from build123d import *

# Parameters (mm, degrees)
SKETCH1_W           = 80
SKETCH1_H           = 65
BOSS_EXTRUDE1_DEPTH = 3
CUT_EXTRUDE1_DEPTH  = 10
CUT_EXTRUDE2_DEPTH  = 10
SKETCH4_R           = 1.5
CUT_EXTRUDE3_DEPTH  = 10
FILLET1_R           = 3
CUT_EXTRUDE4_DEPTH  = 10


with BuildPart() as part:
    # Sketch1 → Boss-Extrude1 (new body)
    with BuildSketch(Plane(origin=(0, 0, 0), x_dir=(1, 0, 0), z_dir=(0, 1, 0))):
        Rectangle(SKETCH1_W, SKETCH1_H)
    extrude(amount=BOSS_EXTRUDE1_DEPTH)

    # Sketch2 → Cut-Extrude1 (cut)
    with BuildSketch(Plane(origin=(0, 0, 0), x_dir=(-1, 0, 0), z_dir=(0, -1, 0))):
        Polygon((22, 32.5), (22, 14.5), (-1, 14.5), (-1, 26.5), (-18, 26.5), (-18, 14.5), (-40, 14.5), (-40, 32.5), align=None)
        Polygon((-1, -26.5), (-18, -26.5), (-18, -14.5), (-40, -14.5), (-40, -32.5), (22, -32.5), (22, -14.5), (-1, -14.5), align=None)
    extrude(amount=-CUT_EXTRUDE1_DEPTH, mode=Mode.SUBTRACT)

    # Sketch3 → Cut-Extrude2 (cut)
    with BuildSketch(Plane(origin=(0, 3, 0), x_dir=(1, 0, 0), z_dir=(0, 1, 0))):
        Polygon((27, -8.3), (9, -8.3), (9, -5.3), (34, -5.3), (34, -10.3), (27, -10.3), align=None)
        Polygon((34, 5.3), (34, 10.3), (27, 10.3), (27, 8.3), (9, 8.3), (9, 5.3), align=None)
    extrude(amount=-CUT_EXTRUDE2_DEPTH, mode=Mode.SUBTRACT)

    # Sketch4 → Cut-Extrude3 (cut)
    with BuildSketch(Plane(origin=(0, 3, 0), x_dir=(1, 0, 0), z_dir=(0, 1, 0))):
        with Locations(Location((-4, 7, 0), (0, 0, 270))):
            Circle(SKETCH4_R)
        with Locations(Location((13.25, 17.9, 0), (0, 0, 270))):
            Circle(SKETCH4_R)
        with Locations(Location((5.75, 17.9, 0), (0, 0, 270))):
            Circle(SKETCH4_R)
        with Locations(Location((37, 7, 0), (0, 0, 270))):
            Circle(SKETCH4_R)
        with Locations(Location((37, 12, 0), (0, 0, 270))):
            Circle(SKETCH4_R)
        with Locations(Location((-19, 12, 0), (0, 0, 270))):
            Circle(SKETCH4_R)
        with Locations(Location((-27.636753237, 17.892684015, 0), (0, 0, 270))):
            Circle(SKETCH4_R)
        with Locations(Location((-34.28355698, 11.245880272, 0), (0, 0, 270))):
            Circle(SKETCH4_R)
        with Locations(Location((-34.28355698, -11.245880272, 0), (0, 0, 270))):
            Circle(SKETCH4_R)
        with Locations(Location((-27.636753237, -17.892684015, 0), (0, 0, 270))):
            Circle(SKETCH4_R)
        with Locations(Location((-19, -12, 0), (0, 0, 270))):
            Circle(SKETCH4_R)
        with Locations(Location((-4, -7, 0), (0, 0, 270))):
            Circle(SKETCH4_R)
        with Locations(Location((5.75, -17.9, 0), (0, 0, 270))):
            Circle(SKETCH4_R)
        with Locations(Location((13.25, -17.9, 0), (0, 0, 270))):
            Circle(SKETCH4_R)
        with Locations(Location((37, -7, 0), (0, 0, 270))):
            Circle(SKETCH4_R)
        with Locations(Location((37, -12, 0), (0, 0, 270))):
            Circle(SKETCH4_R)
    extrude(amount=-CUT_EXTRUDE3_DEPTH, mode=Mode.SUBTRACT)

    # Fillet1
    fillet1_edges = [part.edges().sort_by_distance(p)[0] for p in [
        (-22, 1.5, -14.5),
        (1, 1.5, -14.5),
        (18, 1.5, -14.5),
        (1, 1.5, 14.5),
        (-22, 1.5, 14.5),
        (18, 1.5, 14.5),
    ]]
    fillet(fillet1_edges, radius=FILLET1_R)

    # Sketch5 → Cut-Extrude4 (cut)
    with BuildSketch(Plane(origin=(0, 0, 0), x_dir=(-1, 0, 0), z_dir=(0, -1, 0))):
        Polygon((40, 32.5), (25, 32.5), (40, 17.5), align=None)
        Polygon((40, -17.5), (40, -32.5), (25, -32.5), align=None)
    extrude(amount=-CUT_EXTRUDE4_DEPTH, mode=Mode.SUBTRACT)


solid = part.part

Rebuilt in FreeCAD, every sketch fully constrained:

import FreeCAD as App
import Part
import Sketcher
from FreeCAD import Vector


def edges_at(feature, points):
    """Names of the edges that pass closest to the given points."""
    edges = feature.Shape.Edges
    near = lambda p: min(range(len(edges)), key=lambda i: edges[i].distToShape(Part.Vertex(*p))[0])
    return sorted({f"Edge{near(p) + 1}" for p in points})


def add_polygon(sketch, points):
    """Adds a closed chain of lines whose ends are joined by coincident constraints."""
    first, n = sketch.GeometryCount, len(points)
    for a, b in zip(points, points[1:] + points[:1]):
        sketch.addGeometry(Part.LineSegment(App.Vector(*a, 0), App.Vector(*b, 0)), False)
    for i in range(n):
        sketch.addConstraint(Sketcher.Constraint("Coincident", first + i, 2, first + (i + 1) % n, 1))

doc = App.newDocument("Part")
params = doc.addObject("Spreadsheet::Sheet", "Params")
for row, (alias, value) in enumerate([
    ("sketch1_width", "80 mm"),
    ("sketch1_height", "65 mm"),
    ("pad1_length", "3 mm"),
    ("sketch2_width", "62 mm"),
    ("sketch2_width2", "22 mm"),
    ("sketch2_width3", "17 mm"),
    ("sketch2_height", "18 mm"),
    ("sketch2_height2", "12 mm"),
    ("pocket1_length", "10 mm"),
    ("sketch3_width", "18 mm"),
    ("sketch3_width2", "7 mm"),
    ("sketch3_height", "2 mm"),
    ("sketch3_height2", "5 mm"),
    ("pocket2_length", "10 mm"),
    ("sketch4_diameter", "3 mm"),
    ("pocket3_length", "10 mm"),
    ("fillet_radius", "3 mm"),
    ("sketch5_width", "15 mm"),
    ("pocket4_length", "10 mm"),
], start=1):
    params.set(f"A{row}", alias)
    params.set(f"B{row}", "=" + value)
    params.setAlias(f"B{row}", alias)

body = doc.addObject("PartDesign::Body", "Body")

# Sketch on XZ plane
sketch1 = doc.addObject("Sketcher::SketchObject", "Sketch")
body.addObject(sketch1)
sketch1.AttachmentSupport = (doc.XZ_Plane, [""])
sketch1.MapMode = "FlatFace"
add_polygon(sketch1, [(-40, -32), (-40, 32), (40, 32), (40, -32)])  # lines 0-3
sketch1.addConstraint([
    Sketcher.Constraint("Vertical", 0),
    Sketcher.Constraint("Horizontal", 1),
    Sketcher.Constraint("Vertical", 2),
    Sketcher.Constraint("Horizontal", 3),
    Sketcher.Constraint("Symmetric", 0, 2, 2, 2, -1, 1),
    Sketcher.Constraint("DistanceX", 1, 1, 1, 2, 80.0),
    Sketcher.Constraint("DistanceY", 0, 1, 0, 2, 65.0),
])
sketch1.setExpression("Constraints[9]", "Params.sketch1_width")
sketch1.setExpression("Constraints[10]", "Params.sketch1_height")
pad1 = doc.addObject("PartDesign::Pad", "Pad")
body.addObject(pad1)
pad1.Profile = sketch1
pad1.setExpression("Length", "Params.pad1_length")
pad1.Reversed = True

# Sketch on XZ plane
sketch2 = doc.addObject("Sketcher::SketchObject", "Sketch001")
body.addObject(sketch2)
sketch2.AttachmentSupport = (doc.XZ_Plane, [""])
sketch2.MapMode = "FlatFace"
add_polygon(sketch2, [(-22, -14), (-22, -32), (40, -32), (40, -14), (18, -14), (18, -26), (1, -26), (1, -14)])  # lines 0-7
add_polygon(sketch2, [(1, 26), (18, 26), (18, 14), (40, 14), (40, 32), (-22, 32), (-22, 14), (1, 14)])  # lines 8-15
sketch2.addConstraint([
    Sketcher.Constraint("Vertical", 0),
    Sketcher.Constraint("Horizontal", 1),
    Sketcher.Constraint("Vertical", 2),
    Sketcher.Constraint("Horizontal", 3),
    Sketcher.Constraint("Vertical", 4),
    Sketcher.Constraint("Horizontal", 5),
    Sketcher.Constraint("Vertical", 6),
    Sketcher.Constraint("Horizontal", 7),
    Sketcher.Constraint("Horizontal", 8),
    Sketcher.Constraint("Vertical", 9),
    Sketcher.Constraint("Horizontal", 10),
    Sketcher.Constraint("Vertical", 11),
    Sketcher.Constraint("Horizontal", 12),
    Sketcher.Constraint("Vertical", 13),
    Sketcher.Constraint("Horizontal", 14),
    Sketcher.Constraint("Vertical", 15),
    Sketcher.Constraint("Symmetric", 4, 2, 8, 2, -1),
    Sketcher.Constraint("Symmetric", 2, 2, 10, 2, -1),
    Sketcher.Constraint("Symmetric", 0, 2, 12, 2, -1),
    Sketcher.Constraint("Symmetric", 6, 2, 14, 2, -1),
    Sketcher.Constraint("Horizontal", 3, 2, 6, 2),
    Sketcher.Constraint("DistanceX", 1, 1, 1, 2, 62.0),
    Sketcher.Constraint("DistanceX", 3, 2, 3, 1, 22.0),
    Sketcher.Constraint("DistanceX", 5, 2, 5, 1, 17.0),
    Sketcher.Constraint("DistanceY", 0, 2, 0, 1, 18.0),
    Sketcher.Constraint("DistanceY", 4, 2, 4, 1, 12.0),
    Sketcher.Constraint("DistanceX", 0, 2, -1, 1, 22.0),
    Sketcher.Constraint("DistanceY", 3, 2, 8, 2, 41.0),
])
sketch2.setExpression("Constraints[37]", "Params.sketch2_width")
sketch2.setExpression("Constraints[38]", "Params.sketch2_width2")
sketch2.setExpression("Constraints[39]", "Params.sketch2_width3")
sketch2.setExpression("Constraints[40]", "Params.sketch2_height")
sketch2.setExpression("Constraints[41]", "Params.sketch2_height2")
pocket1 = doc.addObject("PartDesign::Pocket", "Pocket")
body.addObject(pocket1)
pocket1.Profile = sketch2
pocket1.setExpression("Length", "Params.pocket1_length")

# Sketch on XZ plane
sketch3 = doc.addObject("Sketcher::SketchObject", "Sketch002")
body.addObject(sketch3)
sketch3.AttachmentSupport = (doc.XZ_Plane, [""])
sketch3.MapMode = "FlatFace"
sketch3.AttachmentOffset = App.Placement(Vector(0, 0, -3), App.Rotation())
add_polygon(sketch3, [(9, 8.3), (27, 8.3), (27, 10.3), (34, 10.3), (34, 5.3), (9, 5.3)])  # lines 0-5
add_polygon(sketch3, [(34, -5.3), (34, -10.3), (27, -10.3), (27, -8.3), (9, -8.3), (9, -5.3)])  # lines 6-11
sketch3.addConstraint([
    Sketcher.Constraint("Horizontal", 0),
    Sketcher.Constraint("Vertical", 1),
    Sketcher.Constraint("Horizontal", 2),
    Sketcher.Constraint("Vertical", 3),
    Sketcher.Constraint("Horizontal", 4),
    Sketcher.Constraint("Vertical", 5),
    Sketcher.Constraint("Vertical", 6),
    Sketcher.Constraint("Horizontal", 7),
    Sketcher.Constraint("Vertical", 8),
    Sketcher.Constraint("Horizontal", 9),
    Sketcher.Constraint("Vertical", 10),
    Sketcher.Constraint("Horizontal", 11),
    Sketcher.Constraint("Symmetric", 2, 2, 6, 2, -1),
    Sketcher.Constraint("Symmetric", 0, 2, 8, 2, -1),
    Sketcher.Constraint("Symmetric", 4, 2, 10, 2, -1),
    Sketcher.Constraint("DistanceX", 0, 1, 0, 2, 18.0),
    Sketcher.Constraint("DistanceX", 2, 1, 2, 2, 7.0),
    Sketcher.Constraint("DistanceY", 1, 1, 1, 2, 2.0),
    Sketcher.Constraint("DistanceY", 3, 2, 3, 1, 5.0),
    Sketcher.Constraint("DistanceX", -1, 1, 0, 2, 27.0),
    Sketcher.Constraint("DistanceY", -1, 1, 0, 2, 8.3),
])
sketch3.setExpression("Constraints[27]", "Params.sketch3_width")
sketch3.setExpression("Constraints[28]", "Params.sketch3_width2")
sketch3.setExpression("Constraints[29]", "Params.sketch3_height")
sketch3.setExpression("Constraints[30]", "Params.sketch3_height2")
pocket2 = doc.addObject("PartDesign::Pocket", "Pocket001")
body.addObject(pocket2)
pocket2.Profile = sketch3
pocket2.setExpression("Length", "Params.pocket2_length")
pocket2.Reversed = True

# Sketch on XZ plane
sketch4 = doc.addObject("Sketcher::SketchObject", "Sketch003")
body.addObject(sketch4)
sketch4.AttachmentSupport = (doc.XZ_Plane, [""])
sketch4.MapMode = "FlatFace"
sketch4.AttachmentOffset = App.Placement(Vector(0, 0, -3), App.Rotation())
sketch4.addGeometry([
    Part.Circle(Vector(-4, -7, 0), Vector(0, 0, 1), 1.5),  # 0
    Part.Circle(Vector(13.2, -17.9, 0), Vector(0, 0, 1), 1.5),  # 1
    Part.Circle(Vector(5.8, -17.9, 0), Vector(0, 0, 1), 1.5),  # 2
    Part.Circle(Vector(37, -7, 0), Vector(0, 0, 1), 1.5),  # 3
    Part.Circle(Vector(37, -12, 0), Vector(0, 0, 1), 1.5),  # 4
    Part.Circle(Vector(-19, -12, 0), Vector(0, 0, 1), 1.5),  # 5
    Part.Circle(Vector(-27.6, -17.9, 0), Vector(0, 0, 1), 1.5),  # 6
    Part.Circle(Vector(-34.3, -11.2, 0), Vector(0, 0, 1), 1.5),  # 7
    Part.Circle(Vector(-34.3, 11.2, 0), Vector(0, 0, 1), 1.5),  # 8
    Part.Circle(Vector(-27.6, 17.9, 0), Vector(0, 0, 1), 1.5),  # 9
    Part.Circle(Vector(-19, 12, 0), Vector(0, 0, 1), 1.5),  # 10
    Part.Circle(Vector(-4, 7, 0), Vector(0, 0, 1), 1.5),  # 11
    Part.Circle(Vector(5.8, 17.9, 0), Vector(0, 0, 1), 1.5),  # 12
    Part.Circle(Vector(13.2, 17.9, 0), Vector(0, 0, 1), 1.5),  # 13
    Part.Circle(Vector(37, 7, 0), Vector(0, 0, 1), 1.5),  # 14
    Part.Circle(Vector(37, 12, 0), Vector(0, 0, 1), 1.5),  # 15
], False)
sketch4.addConstraint([
    Sketcher.Constraint("Equal", 0, 1),
    Sketcher.Constraint("Equal", 1, 2),
    Sketcher.Constraint("Equal", 2, 3),
    Sketcher.Constraint("Equal", 3, 4),
    Sketcher.Constraint("Equal", 4, 5),
    Sketcher.Constraint("Equal", 5, 6),
    Sketcher.Constraint("Equal", 6, 7),
    Sketcher.Constraint("Equal", 7, 8),
    Sketcher.Constraint("Equal", 8, 9),
    Sketcher.Constraint("Equal", 9, 10),
    Sketcher.Constraint("Equal", 10, 11),
    Sketcher.Constraint("Equal", 11, 12),
    Sketcher.Constraint("Equal", 12, 13),
    Sketcher.Constraint("Equal", 13, 14),
    Sketcher.Constraint("Equal", 14, 15),
    Sketcher.Constraint("Symmetric", 7, 3, 8, 3, -1),
    Sketcher.Constraint("Symmetric", 6, 3, 9, 3, -1),
    Sketcher.Constraint("Symmetric", 5, 3, 10, 3, -1),
    Sketcher.Constraint("Symmetric", 0, 3, 11, 3, -1),
    Sketcher.Constraint("Symmetric", 2, 3, 12, 3, -1),
    Sketcher.Constraint("Symmetric", 1, 3, 13, 3, -1),
    Sketcher.Constraint("Symmetric", 3, 3, 14, 3, -1),
    Sketcher.Constraint("Symmetric", 4, 3, 15, 3, -1),
    Sketcher.Constraint("Horizontal", 1, 3, 2, 3),
    Sketcher.Constraint("Horizontal", 0, 3, 3, 3),
    Sketcher.Constraint("Horizontal", 4, 3, 5, 3),
    Sketcher.Constraint("Vertical", 3, 3, 4, 3),
    Sketcher.Constraint("Diameter", 0, 3.0),
    Sketcher.Constraint("DistanceX", 0, 3, -1, 1, 4.0),
    Sketcher.Constraint("DistanceY", 0, 3, -1, 1, 7.0),
    Sketcher.Constraint("DistanceX", -1, 1, 3, 3, 37.0),
    Sketcher.Constraint("DistanceY", 4, 3, -1, 1, 12.0),
    Sketcher.Constraint("DistanceX", 5, 3, -1, 1, 19.0),
    Sketcher.Constraint("DistanceY", 1, 3, -1, 1, 17.9),
    Sketcher.Constraint("DistanceX", 2, 3, 1, 3, 7.5),
    Sketcher.Constraint("DistanceX", -1, 1, 1, 3, 13.25),
    Sketcher.Constraint("DistanceY", 7, 3, -1, 1, 11.24588),
    Sketcher.Constraint("DistanceY", 6, 3, 9, 3, 35.785368),
    Sketcher.Constraint("DistanceX", 6, 3, -1, 1, 27.636753),
    Sketcher.Constraint("DistanceX", 7, 3, -1, 1, 34.283557),
])
sketch4.setExpression("Constraints[27]", "Params.sketch4_diameter")
pocket3 = doc.addObject("PartDesign::Pocket", "Pocket002")
body.addObject(pocket3)
pocket3.Profile = sketch4
pocket3.setExpression("Length", "Params.pocket3_length")
pocket3.Reversed = True
doc.recompute()

fillet = doc.addObject("PartDesign::Fillet", "Fillet")
body.addObject(fillet)
fillet.Base = (pocket3, edges_at(pocket3, [
    (-22, 1.5, -14.5),
    (1, 1.5, -14.5),
    (18, 1.5, -14.5),
    (1, 1.5, 14.5),
    (-22, 1.5, 14.5),
    (18, 1.5, 14.5),
]))
fillet.setExpression("Radius", "Params.fillet_radius")

# Sketch on XZ plane
sketch5 = doc.addObject("Sketcher::SketchObject", "Sketch004")
body.addObject(sketch5)
sketch5.AttachmentSupport = (doc.XZ_Plane, [""])
sketch5.MapMode = "FlatFace"
add_polygon(sketch5, [(-40, -32), (-25, -32), (-40, -18)])  # lines 0-2
add_polygon(sketch5, [(-40, 32), (-40, 18), (-25, 32)])  # lines 3-5
sketch5.addConstraint([
    Sketcher.Constraint("Horizontal", 0),
    Sketcher.Constraint("Vertical", 2),
    Sketcher.Constraint("Vertical", 3),
    Sketcher.Constraint("Horizontal", 5),
    Sketcher.Constraint("Symmetric", 1, 2, 3, 2, -1),
    Sketcher.Constraint("Symmetric", 0, 2, 4, 2, -1),
    Sketcher.Constraint("Perpendicular", 1, 4),
    Sketcher.Constraint("DistanceX", 0, 1, 0, 2, 15.0),
    Sketcher.Constraint("DistanceX", 0, 2, -1, 1, 25.0),
    Sketcher.Constraint("DistanceY", 1, 2, 3, 2, 35.0),
])
sketch5.setExpression("Constraints[13]", "Params.sketch5_width")
pocket4 = doc.addObject("PartDesign::Pocket", "Pocket003")
body.addObject(pocket4)
pocket4.Profile = sketch5
pocket4.setExpression("Length", "Params.pocket4_length")

doc.recompute()
